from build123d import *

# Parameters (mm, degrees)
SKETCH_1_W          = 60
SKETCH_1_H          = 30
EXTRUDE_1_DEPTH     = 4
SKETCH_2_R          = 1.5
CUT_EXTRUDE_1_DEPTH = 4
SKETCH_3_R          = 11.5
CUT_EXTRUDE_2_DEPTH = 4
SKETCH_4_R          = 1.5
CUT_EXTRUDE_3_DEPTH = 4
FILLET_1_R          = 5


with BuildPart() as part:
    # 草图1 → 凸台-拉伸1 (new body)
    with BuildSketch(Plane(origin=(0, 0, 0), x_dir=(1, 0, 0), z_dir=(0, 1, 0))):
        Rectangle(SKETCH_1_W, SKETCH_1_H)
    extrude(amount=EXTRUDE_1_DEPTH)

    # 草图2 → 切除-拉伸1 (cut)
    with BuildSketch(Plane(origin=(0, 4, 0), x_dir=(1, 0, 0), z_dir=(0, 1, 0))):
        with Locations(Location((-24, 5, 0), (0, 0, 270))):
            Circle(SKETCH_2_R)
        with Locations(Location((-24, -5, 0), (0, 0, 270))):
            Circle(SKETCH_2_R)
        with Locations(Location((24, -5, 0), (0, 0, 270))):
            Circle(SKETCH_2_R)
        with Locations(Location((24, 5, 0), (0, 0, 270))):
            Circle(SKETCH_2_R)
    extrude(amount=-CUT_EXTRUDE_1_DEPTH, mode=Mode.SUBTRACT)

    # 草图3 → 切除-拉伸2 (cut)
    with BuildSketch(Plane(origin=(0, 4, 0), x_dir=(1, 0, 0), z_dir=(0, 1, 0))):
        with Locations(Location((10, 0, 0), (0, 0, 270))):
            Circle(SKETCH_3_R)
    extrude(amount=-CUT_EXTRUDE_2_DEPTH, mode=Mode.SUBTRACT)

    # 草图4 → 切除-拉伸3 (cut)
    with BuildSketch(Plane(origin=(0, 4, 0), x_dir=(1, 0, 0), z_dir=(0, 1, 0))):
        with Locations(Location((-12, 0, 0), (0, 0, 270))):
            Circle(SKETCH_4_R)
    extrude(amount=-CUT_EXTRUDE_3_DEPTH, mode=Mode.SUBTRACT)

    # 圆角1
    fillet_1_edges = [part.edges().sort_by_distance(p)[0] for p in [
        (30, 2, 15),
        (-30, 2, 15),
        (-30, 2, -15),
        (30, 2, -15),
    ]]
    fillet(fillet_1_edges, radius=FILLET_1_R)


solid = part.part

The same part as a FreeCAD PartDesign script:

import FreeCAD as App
import Part
import Sketcher
from FreeCAD import Vector
Q = App.Units.Quantity


def edges_at(feature, points):
    """Names of the edges that pass closest to the given points."""
    edges = feature.Shape.Edges
    near = lambda p: min(range(len(edges)), key=lambda i: edges[i].distToShape(Part.Vertex(*p))[0])
    return sorted({f"Edge{near(p) + 1}" for p in points})


def add_polygon(sketch, points):
    """Adds a closed chain of lines whose ends are joined by coincident constraints."""
    first, n = sketch.GeometryCount, len(points)
    for a, b in zip(points, points[1:] + points[:1]):
        sketch.addGeometry(Part.LineSegment(App.Vector(*a, 0), App.Vector(*b, 0)), False)
    for i in range(n):
        sketch.addConstraint(Sketcher.Constraint("Coincident", first + i, 2, first + (i + 1) % n, 1))

doc = App.newDocument("Part")
body = doc.addObject("PartDesign::Body", "Body")

sketch1 = body.newObject("Sketcher::SketchObject", "Sketch")
sketch1.AttachmentSupport = (doc.getObject("XZ_Plane"), [""])
sketch1.MapMode = "FlatFace"
add_polygon(sketch1, [(-30, -15), (-30, 15), (30, 15), (30, -15)])
sketch1.addConstraint([
    Sketcher.Constraint("Vertical", 0),
    Sketcher.Constraint("Horizontal", 1),
    Sketcher.Constraint("Vertical", 2),
    Sketcher.Constraint("Horizontal", 3),
    Sketcher.Constraint("Symmetric", 0, 2, 2, 2, -1, 1),
    Sketcher.Constraint("DistanceX", 1, 1, 1, 2, Q("60 mm")),
    Sketcher.Constraint("DistanceY", 0, 1, 0, 2, Q("30 mm")),
])
pad1 = body.newObject("PartDesign::Pad", "Pad")
pad1.Profile = sketch1
pad1.Length = 4
pad1.Reversed = True

sketch2 = body.newObject("Sketcher::SketchObject", "Sketch001")
sketch2.AttachmentSupport = (doc.getObject("XZ_Plane"), [""])
sketch2.MapMode = "FlatFace"
sketch2.AttachmentOffset = App.Placement(Vector(0, 0, -4), App.Rotation())
sketch2.addGeometry([
    Part.Circle(Vector(-24, -5, 0), Vector(0, 0, 1), 1.5),
    Part.Circle(Vector(-24, 5, 0), Vector(0, 0, 1), 1.5),
    Part.Circle(Vector(24, 5, 0), Vector(0, 0, 1), 1.5),
    Part.Circle(Vector(24, -5, 0), Vector(0, 0, 1), 1.5),
], False)
sketch2.addConstraint([
    Sketcher.Constraint("Equal", 0, 1),
    Sketcher.Constraint("Equal", 1, 2),
    Sketcher.Constraint("Equal", 2, 3),
    Sketcher.Constraint("Symmetric", 0, 3, 2, 3, -1, 1),
    Sketcher.Constraint("Symmetric", 1, 3, 3, 3, -1, 1),
    Sketcher.Constraint("Symmetric", 1, 3, 2, 3, -2),
    Sketcher.Constraint("Diameter", 0, Q("3 mm")),
    Sketcher.Constraint("DistanceX", 0, 3, -1, 1, Q("24 mm")),
    Sketcher.Constraint("DistanceY", 0, 3, -1, 1, Q("5 mm")),
])
pocket1 = body.newObject("PartDesign::Pocket", "Pocket")
pocket1.Profile = sketch2
pocket1.Length = 4
pocket1.Reversed = True

sketch3 = body.newObject("Sketcher::SketchObject", "Sketch002")
sketch3.AttachmentSupport = (doc.getObject("XZ_Plane"), [""])
sketch3.MapMode = "FlatFace"
sketch3.AttachmentOffset = App.Placement(Vector(0, 0, -4), App.Rotation())
sketch3.addGeometry(Part.Circle(Vector(10, 0, 0), Vector(0, 0, 1), 11.5), False)
sketch3.addConstraint([
    Sketcher.Constraint("PointOnObject", 0, 3, -1),
    Sketcher.Constraint("Diameter", 0, Q("23 mm")),
    Sketcher.Constraint("DistanceX", -1, 1, 0, 3, Q("10 mm")),
])
pocket2 = body.newObject("PartDesign::Pocket", "Pocket001")
pocket2.Profile = sketch3
pocket2.Length = 4
pocket2.Reversed = True

sketch4 = body.newObject("Sketcher::SketchObject", "Sketch003")
sketch4.AttachmentSupport = (doc.getObject("XZ_Plane"), [""])
sketch4.MapMode = "FlatFace"
sketch4.AttachmentOffset = App.Placement(Vector(0, 0, -4), App.Rotation())
sketch4.addGeometry(Part.Circle(Vector(-12, 0, 0), Vector(0, 0, 1), 1.5), False)
sketch4.addConstraint([
    Sketcher.Constraint("PointOnObject", 0, 3, -1),
    Sketcher.Constraint("Diameter", 0, Q("3 mm")),
    Sketcher.Constraint("DistanceX", 0, 3, -1, 1, Q("12 mm")),
])
pocket3 = body.newObject("PartDesign::Pocket", "Pocket002")
pocket3.Profile = sketch4
pocket3.Length = 4
pocket3.Reversed = True
doc.recompute()

fillet = body.newObject("PartDesign::Fillet", "Fillet")
fillet.Base = (pocket3, edges_at(pocket3, [
    (30, 2, 15),
    (-30, 2, 15),
    (-30, 2, -15),
    (30, 2, -15),
]))
fillet.Radius = 5

doc.recompute()
